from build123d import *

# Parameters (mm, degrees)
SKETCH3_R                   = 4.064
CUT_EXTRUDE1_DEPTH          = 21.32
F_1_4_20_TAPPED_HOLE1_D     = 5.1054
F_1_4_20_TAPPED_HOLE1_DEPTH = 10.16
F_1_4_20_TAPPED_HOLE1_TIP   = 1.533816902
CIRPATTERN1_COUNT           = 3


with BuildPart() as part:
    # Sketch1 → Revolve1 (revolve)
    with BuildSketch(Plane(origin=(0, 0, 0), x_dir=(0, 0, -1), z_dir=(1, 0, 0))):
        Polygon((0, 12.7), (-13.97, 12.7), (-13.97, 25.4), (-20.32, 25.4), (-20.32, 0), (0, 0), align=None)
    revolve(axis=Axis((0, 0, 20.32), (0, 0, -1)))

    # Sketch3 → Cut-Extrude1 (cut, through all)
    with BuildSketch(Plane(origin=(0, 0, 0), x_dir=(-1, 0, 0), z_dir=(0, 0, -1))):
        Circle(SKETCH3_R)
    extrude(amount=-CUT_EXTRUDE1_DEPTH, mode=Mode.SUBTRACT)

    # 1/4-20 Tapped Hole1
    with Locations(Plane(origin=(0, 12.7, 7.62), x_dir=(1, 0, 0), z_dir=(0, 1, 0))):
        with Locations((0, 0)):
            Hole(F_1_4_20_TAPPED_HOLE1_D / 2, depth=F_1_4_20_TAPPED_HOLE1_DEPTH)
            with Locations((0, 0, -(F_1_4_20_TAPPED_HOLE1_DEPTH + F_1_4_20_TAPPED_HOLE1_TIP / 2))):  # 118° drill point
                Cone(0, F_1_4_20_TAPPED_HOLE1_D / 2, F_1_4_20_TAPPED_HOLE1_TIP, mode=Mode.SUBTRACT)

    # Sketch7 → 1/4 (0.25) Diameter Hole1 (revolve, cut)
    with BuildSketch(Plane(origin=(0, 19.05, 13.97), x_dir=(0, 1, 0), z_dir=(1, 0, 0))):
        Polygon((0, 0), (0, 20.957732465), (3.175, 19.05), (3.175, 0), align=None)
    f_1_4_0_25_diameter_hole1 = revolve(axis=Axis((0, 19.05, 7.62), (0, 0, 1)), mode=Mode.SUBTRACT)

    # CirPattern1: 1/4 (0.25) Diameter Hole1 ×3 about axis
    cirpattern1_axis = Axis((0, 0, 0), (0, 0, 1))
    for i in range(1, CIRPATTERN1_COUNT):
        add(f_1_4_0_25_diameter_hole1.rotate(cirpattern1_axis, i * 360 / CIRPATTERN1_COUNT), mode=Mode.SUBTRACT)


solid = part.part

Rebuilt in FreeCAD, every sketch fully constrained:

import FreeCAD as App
import Part
import Sketcher
Q = App.Units.Quantity

doc = App.newDocument("Part")
params = doc.addObject("Spreadsheet::Sheet", "Params")
for row, (alias, value) in enumerate([
    ("sketch1_width", "1 in"),
    ("sketch1_height", "0.8 in"),
    ("sketch1_height2", "0.55 in"),
    ("revolution_angle", "360 deg"),
    ("sketch2_diameter", "0.32 in"),
    ("sketch3_diameter", "0.201 in"),
    ("hole_diameter", "0.201 in"),
    ("hole_depth", "0.4 in"),
    ("sketch4_height", "0.75 in"),
    ("sketch4_width", "0.125 in"),
    ("groove_angle", "360 deg"),
], start=1):
    params.set(f"A{row}", alias)
    params.set(f"B{row}", "=" + value)
    params.setAlias(f"B{row}", alias)

body = doc.addObject("PartDesign::Body", "Body")

# Sketch on YZ plane
sketch1 = body.newObject("Sketcher::SketchObject", "Sketch")
sketch1.AttachmentSupport = (doc.getObject("YZ_Plane"), [""])
sketch1.MapMode = "FlatFace"
sketch1.addGeometry([
    Part.LineSegment(App.Vector(12.7, 0, 0), App.Vector(12.7, 13.97, 0)),  # 0
    Part.LineSegment(App.Vector(12.7, 13.97, 0), App.Vector(25.4, 13.97, 0)),  # 1
    Part.LineSegment(App.Vector(25.4, 13.97, 0), App.Vector(25.4, 20.32, 0)),  # 2
    Part.LineSegment(App.Vector(25.4, 20.32, 0), App.Vector(0, 20.32, 0)),  # 3
    Part.LineSegment(App.Vector(0, 20.32, 0), App.Vector(0, 0, 0)),  # 4
    Part.LineSegment(App.Vector(0, 0, 0), App.Vector(12.7, 0, 0)),  # 5
], False)
sketch1.addConstraint([
    Sketcher.Constraint("Coincident", 0, 2, 1, 1),
    Sketcher.Constraint("Coincident", 1, 2, 2, 1),
    Sketcher.Constraint("Coincident", 2, 2, 3, 1),
    Sketcher.Constraint("Coincident", 3, 2, 4, 1),
    Sketcher.Constraint("Coincident", 4, 2, 5, 1),
    Sketcher.Constraint("Coincident", 5, 2, 0, 1),
    Sketcher.Constraint("Vertical", 0),
    Sketcher.Constraint("Horizontal", 1),
    Sketcher.Constraint("Vertical", 2),
    Sketcher.Constraint("Horizontal", 3),
    Sketcher.Constraint("Vertical", 4),
    Sketcher.Constraint("Horizontal", 5),
    Sketcher.Constraint("Coincident", 4, 2, -1, 1),
    Sketcher.Constraint("Equal", 1, 5),
    Sketcher.Constraint("DistanceX", 3, 2, 3, 1, Q("1 in")),
    Sketcher.Constraint("DistanceY", 4, 2, 4, 1, Q("0.8 in")),
    Sketcher.Constraint("DistanceY", 0, 1, 0, 2, Q("0.55 in")),
])
sketch1.setExpression("Constraints[14]", "Params.sketch1_width")
sketch1.setExpression("Constraints[15]", "Params.sketch1_height")
sketch1.setExpression("Constraints[16]", "Params.sketch1_height2")
revolution = body.newObject("PartDesign::Revolution", "Revolution")
revolution.Profile = sketch1
revolution.ReferenceAxis = (sketch1, ["V_Axis"])
revolution.setExpression("Angle", "Params.revolution_angle")

# Sketch on XY plane
sketch2 = body.newObject("Sketcher::SketchObject", "Sketch001")
sketch2.AttachmentSupport = (doc.getObject("XY_Plane"), [""])
sketch2.MapMode = "FlatFace"
sketch2.addGeometry(Part.Circle(App.Vector(0, 0, 0), App.Vector(0, 0, 1), 4.064), False)
sketch2.addConstraint([
    Sketcher.Constraint("Coincident", 0, 3, -1, 1),
    Sketcher.Constraint("Diameter", 0, Q("0.32 in")),
])
sketch2.setExpression("Constraints[1]", "Params.sketch2_diameter")
pocket1 = body.newObject("PartDesign::Pocket", "Pocket")
pocket1.Profile = sketch2
pocket1.Type = "ThroughAll"
pocket1.Reversed = True

# Sketch on XZ plane
sketch3 = body.newObject("Sketcher::SketchObject", "Sketch002")
sketch3.AttachmentSupport = (doc.getObject("XZ_Plane"), [""])
sketch3.MapMode = "FlatFace"
sketch3.AttachmentOffset = App.Placement(App.Vector(0, 0, -0.5 * 25.4), App.Rotation())
sketch3.addGeometry(Part.Circle(App.Vector(0, 7.62, 0), App.Vector(0, 0, 1), 2.5527), False)
sketch3.addConstraint([
    Sketcher.Constraint("PointOnObject", 0, 3, -2),
    Sketcher.Constraint("Diameter", 0, Q("0.201 in")),
    Sketcher.Constraint("DistanceY", -1, 1, 0, 3, Q("0.3 in")),
])
sketch3.setExpression("Constraints[1]", "Params.sketch3_diameter")
doc.recompute()
hole = body.newObject("PartDesign::Hole", "Hole")
hole.Profile = sketch3
hole.ThreadType = "None"
hole.setExpression("Diameter", "Params.hole_diameter")
hole.DepthType = "Dimension"
hole.setExpression("Depth", "Params.hole_depth")
hole.DrillPoint = "Angled"
hole.DrillPointAngle = 118
hole.Reversed = True

# Sketch on YZ plane
sketch4 = body.newObject("Sketcher::SketchObject", "Sketch003")
sketch4.AttachmentSupport = (doc.getObject("YZ_Plane"), [""])
sketch4.MapMode = "FlatFace"
sketch4.addGeometry([
    Part.LineSegment(App.Vector(19.05, 34.927732, 0), App.Vector(19.05, 13.97, 0)),
    Part.LineSegment(App.Vector(19.05, 13.97, 0), App.Vector(22.225, 13.97, 0)),
    Part.LineSegment(App.Vector(22.225, 13.97, 0), App.Vector(22.225, 33.02, 0)),
    Part.LineSegment(App.Vector(22.225, 33.02, 0), App.Vector(19.05, 34.927732, 0)),
], False)
sketch4.addGeometry(Part.LineSegment(App.Vector(19.05, 13.97, 0), App.Vector(19.05, 34.927732, 0)), True)  # axis
sketch4.addConstraint([
    Sketcher.Constraint("Coincident", 0, 2, 1, 1),
    Sketcher.Constraint("Coincident", 1, 2, 2, 1),
    Sketcher.Constraint("Coincident", 2, 2, 3, 1),
    Sketcher.Constraint("Coincident", 3, 2, 0, 1),
    Sketcher.Constraint("Vertical", 0),
    Sketcher.Constraint("Horizontal", 1),
    Sketcher.Constraint("Vertical", 2),
    Sketcher.Constraint("Vertical", 4),
    Sketcher.Constraint("Coincident", 4, 1, 0, 2),
    Sketcher.Constraint("Equal", 0, 4),
    Sketcher.Constraint("Angle", 3, Q("149 deg")),
    Sketcher.Constraint("DistanceY", 2, 1, 2, 2, Q("0.75 in")),
    Sketcher.Constraint("DistanceY", -1, 1, 2, 2, Q("1.3 in")),
    Sketcher.Constraint("DistanceX", 1, 1, 1, 2, Q("0.125 in")),
    Sketcher.Constraint("DistanceX", -1, 1, 0, 2, Q("0.75 in")),
])
sketch4.setExpression("Constraints[11]", "Params.sketch4_height")
sketch4.setExpression("Constraints[13]", "Params.sketch4_width")
groove = body.newObject("PartDesign::Groove", "Groove")
groove.Profile = sketch4
groove.ReferenceAxis = (sketch4, ["Axis0"])
groove.setExpression("Angle", "Params.groove_angle")
doc.recompute()

polarpattern = body.newObject("PartDesign::PolarPattern", "PolarPattern")
polarpattern.Originals = [groove]
polarpattern.Axis = (doc.getObject("Z_Axis"), [""])
polarpattern.Angle = 360
polarpattern.Occurrences = 3
body.Tip = polarpattern

doc.recompute()
